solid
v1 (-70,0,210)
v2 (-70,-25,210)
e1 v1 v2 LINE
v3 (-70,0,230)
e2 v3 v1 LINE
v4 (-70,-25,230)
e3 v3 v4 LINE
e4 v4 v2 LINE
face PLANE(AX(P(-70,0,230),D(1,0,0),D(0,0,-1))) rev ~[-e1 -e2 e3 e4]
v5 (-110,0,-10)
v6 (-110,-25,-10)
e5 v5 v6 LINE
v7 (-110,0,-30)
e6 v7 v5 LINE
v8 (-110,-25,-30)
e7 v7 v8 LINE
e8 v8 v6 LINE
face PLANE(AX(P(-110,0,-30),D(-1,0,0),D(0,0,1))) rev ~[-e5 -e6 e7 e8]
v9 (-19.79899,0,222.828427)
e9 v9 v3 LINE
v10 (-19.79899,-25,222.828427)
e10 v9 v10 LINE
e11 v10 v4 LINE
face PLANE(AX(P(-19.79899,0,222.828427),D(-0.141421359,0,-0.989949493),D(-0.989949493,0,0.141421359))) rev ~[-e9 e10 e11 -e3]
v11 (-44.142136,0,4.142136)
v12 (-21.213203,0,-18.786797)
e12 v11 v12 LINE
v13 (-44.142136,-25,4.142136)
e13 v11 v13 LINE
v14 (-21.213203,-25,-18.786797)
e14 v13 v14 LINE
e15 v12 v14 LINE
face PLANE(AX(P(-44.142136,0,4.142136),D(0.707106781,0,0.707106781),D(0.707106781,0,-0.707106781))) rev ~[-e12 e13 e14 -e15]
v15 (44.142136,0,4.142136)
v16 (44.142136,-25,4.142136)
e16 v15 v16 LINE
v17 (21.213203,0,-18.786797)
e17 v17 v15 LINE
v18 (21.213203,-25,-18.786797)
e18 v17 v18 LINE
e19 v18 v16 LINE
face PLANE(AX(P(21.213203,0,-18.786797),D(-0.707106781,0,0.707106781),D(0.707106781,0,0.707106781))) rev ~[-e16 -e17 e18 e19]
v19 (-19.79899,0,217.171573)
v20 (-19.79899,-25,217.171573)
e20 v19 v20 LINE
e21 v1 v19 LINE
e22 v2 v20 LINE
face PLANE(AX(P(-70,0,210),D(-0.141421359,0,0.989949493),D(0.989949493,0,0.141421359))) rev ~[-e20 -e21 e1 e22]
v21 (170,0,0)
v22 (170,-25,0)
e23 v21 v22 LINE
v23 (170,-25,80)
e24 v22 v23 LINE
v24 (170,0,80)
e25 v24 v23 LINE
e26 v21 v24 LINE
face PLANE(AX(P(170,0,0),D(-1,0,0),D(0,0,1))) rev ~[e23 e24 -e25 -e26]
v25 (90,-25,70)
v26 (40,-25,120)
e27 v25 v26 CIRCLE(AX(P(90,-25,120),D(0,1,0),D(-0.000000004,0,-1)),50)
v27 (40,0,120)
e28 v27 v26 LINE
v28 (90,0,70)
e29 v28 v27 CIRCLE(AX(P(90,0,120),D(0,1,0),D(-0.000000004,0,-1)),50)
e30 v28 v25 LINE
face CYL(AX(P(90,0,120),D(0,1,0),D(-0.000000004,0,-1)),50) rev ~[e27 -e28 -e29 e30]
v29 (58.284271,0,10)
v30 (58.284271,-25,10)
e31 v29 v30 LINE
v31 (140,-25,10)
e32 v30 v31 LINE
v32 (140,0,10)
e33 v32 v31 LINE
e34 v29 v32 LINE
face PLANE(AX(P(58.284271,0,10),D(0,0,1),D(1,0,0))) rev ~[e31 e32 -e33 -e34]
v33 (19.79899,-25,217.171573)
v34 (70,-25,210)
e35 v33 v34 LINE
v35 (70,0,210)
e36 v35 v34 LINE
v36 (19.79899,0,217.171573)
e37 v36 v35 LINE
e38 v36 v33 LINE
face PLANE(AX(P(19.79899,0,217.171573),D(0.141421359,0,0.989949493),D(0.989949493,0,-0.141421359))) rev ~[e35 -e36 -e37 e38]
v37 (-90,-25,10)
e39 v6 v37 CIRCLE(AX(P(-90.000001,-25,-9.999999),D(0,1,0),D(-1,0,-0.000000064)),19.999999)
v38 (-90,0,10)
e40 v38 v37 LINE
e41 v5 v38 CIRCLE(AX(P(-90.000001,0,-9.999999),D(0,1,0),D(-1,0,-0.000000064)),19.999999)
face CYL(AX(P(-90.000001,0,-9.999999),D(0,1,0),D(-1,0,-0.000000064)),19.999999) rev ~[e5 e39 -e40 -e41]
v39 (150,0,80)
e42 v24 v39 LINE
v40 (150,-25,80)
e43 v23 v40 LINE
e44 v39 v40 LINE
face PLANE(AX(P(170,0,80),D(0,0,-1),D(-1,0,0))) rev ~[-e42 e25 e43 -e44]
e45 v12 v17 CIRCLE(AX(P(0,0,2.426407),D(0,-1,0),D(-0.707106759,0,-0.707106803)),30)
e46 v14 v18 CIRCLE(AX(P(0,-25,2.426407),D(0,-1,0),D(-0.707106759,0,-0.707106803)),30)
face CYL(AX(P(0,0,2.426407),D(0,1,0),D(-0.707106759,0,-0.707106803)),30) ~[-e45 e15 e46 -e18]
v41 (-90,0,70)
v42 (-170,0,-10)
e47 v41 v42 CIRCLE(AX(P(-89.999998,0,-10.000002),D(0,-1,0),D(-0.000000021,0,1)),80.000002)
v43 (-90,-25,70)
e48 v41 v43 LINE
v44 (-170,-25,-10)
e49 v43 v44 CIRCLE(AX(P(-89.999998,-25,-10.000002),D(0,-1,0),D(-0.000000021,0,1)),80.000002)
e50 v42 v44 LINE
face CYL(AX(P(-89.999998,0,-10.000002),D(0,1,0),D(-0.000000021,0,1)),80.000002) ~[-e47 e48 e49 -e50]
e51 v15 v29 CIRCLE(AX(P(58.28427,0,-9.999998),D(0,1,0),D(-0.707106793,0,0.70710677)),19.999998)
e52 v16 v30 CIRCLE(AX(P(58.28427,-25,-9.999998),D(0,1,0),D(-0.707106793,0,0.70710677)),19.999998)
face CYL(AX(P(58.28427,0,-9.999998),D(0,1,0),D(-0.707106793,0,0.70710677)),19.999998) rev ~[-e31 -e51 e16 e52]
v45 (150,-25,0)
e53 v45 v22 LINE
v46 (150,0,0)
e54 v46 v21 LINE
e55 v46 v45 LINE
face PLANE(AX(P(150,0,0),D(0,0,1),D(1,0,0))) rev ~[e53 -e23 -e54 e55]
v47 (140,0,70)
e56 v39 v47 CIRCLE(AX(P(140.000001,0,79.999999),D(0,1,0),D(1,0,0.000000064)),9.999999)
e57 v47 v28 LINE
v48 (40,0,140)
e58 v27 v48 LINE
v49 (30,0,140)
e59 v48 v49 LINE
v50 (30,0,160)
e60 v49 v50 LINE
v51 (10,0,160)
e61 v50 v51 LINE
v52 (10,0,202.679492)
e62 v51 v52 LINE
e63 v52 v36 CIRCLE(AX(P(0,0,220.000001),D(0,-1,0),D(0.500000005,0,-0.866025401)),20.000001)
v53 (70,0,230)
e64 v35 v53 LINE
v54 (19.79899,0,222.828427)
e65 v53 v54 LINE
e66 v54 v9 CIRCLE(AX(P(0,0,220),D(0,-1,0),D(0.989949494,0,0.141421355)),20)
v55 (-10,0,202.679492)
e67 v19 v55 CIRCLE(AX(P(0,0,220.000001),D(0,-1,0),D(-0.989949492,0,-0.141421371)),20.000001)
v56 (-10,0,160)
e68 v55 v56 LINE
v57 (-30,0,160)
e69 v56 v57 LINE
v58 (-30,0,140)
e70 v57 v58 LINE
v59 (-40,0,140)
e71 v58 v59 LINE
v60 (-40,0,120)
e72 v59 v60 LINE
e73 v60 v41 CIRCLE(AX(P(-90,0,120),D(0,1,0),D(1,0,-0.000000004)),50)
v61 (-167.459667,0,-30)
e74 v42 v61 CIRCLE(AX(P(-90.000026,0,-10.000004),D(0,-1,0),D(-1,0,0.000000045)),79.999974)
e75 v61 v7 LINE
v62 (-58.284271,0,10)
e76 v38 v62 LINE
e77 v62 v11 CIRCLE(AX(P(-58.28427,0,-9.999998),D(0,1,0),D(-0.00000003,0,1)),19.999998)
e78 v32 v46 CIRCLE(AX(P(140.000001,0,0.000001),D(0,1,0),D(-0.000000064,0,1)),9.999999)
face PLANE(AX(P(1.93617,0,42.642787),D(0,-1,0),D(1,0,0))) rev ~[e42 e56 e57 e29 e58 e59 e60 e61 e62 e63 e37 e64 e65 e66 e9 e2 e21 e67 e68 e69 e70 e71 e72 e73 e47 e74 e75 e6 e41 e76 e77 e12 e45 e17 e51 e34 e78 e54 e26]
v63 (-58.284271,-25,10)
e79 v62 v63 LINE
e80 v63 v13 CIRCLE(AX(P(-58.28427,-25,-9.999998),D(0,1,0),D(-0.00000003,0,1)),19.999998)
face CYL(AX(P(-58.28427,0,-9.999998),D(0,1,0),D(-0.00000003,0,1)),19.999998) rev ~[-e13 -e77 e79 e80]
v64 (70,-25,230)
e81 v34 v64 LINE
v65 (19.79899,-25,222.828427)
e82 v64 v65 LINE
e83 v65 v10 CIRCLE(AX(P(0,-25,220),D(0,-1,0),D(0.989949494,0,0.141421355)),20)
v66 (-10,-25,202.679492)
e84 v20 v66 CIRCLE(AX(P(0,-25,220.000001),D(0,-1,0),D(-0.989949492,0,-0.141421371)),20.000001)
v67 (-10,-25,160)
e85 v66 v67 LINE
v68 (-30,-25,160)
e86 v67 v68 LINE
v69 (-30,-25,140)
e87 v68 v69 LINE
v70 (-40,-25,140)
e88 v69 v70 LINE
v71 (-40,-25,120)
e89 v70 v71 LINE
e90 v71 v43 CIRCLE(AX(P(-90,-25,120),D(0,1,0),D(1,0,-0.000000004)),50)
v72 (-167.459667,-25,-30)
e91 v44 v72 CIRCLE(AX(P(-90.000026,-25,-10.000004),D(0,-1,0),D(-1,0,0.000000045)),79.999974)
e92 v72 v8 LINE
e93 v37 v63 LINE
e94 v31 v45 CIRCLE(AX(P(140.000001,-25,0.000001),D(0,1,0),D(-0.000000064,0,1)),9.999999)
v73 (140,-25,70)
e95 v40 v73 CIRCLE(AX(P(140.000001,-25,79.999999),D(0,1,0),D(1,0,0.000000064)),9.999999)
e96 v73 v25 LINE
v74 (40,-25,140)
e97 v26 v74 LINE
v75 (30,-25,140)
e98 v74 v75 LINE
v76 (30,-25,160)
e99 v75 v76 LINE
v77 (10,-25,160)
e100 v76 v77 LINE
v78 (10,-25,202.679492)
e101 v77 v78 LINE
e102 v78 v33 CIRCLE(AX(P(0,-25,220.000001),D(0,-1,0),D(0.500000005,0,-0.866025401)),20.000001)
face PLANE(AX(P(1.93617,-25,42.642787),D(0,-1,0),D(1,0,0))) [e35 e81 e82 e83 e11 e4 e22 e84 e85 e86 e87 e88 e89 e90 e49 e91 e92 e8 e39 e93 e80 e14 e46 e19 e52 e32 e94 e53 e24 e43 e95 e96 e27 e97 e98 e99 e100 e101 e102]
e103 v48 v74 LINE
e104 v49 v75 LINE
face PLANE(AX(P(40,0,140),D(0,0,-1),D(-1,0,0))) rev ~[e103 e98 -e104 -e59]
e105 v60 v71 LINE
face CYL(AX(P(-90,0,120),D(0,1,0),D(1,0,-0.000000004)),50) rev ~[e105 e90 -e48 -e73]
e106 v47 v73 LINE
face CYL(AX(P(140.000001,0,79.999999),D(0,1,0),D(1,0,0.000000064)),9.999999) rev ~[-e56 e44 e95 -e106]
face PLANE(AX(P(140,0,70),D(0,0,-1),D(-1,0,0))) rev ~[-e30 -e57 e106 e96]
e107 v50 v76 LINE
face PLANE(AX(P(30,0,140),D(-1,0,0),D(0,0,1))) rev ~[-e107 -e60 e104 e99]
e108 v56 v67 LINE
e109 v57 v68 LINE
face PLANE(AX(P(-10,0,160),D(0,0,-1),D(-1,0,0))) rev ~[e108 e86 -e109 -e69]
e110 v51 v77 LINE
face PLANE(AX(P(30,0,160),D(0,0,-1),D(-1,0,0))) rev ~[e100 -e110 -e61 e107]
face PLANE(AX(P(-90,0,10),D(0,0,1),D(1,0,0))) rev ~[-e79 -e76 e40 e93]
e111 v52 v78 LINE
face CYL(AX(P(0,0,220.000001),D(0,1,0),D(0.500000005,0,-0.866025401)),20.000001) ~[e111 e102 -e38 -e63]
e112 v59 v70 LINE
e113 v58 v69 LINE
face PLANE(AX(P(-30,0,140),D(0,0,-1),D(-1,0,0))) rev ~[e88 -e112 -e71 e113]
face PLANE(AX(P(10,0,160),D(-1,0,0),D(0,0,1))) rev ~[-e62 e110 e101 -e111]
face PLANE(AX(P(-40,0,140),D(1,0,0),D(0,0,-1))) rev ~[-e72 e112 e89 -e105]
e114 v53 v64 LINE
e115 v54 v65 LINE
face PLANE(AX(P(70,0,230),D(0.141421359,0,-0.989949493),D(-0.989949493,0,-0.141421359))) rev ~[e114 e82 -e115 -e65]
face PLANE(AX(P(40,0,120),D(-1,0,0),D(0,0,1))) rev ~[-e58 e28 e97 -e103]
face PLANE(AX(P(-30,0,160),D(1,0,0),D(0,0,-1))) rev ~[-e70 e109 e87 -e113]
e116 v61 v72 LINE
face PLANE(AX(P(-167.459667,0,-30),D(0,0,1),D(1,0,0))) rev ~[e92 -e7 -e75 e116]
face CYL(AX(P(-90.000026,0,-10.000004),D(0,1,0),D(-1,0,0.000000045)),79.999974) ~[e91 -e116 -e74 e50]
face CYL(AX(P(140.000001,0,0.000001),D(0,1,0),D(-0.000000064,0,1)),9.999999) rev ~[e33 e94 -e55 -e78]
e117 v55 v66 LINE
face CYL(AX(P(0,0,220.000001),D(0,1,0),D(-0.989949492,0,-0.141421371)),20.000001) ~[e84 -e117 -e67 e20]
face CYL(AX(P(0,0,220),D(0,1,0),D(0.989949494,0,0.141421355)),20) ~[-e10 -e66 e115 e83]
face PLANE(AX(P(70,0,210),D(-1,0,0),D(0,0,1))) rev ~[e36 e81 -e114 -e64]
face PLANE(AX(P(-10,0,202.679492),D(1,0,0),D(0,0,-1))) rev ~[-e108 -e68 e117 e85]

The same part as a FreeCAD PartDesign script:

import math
import FreeCAD as App
import Part
import Sketcher

V = App.Vector

doc = App.newDocument("Part")
body = doc.addObject("PartDesign::Body", "Body")

sketch1 = body.newObject("Sketcher::SketchObject", "Sketch")
sketch1.AttachmentSupport = (doc.getObject("XZ_Plane"), [""])
sketch1.MapMode = "FlatFace"
sketch1.addGeometry([
    Part.LineSegment(V(-40, 140, 0), V(-40, 120, 0)),
    Part.ArcOfCircle(Part.Circle(V(-90, 120, 0), V(0, 0, 1), 50), math.radians(-90), math.radians(0)),
    Part.ArcOfCircle(Part.Circle(V(-90, -10, 0), V(0, 0, 1), 80), math.radians(90), math.radians(180)),
    Part.ArcOfCircle(Part.Circle(V(-90, -10, 0), V(0, 0, 1), 80), math.radians(180), math.radians(194.48)),
    Part.LineSegment(V(-167, -30, 0), V(-110, -30, 0)),
    Part.LineSegment(V(-110, -30, 0), V(-110, -10, 0)),
    Part.ArcOfCircle(Part.Circle(V(-90, -10, 0), V(0, 0, 1), 20), math.radians(90), math.radians(180)),
    Part.LineSegment(V(-90, 10, 0), V(-58, 10, 0)),
    Part.ArcOfCircle(Part.Circle(V(-58, -10, 0), V(0, 0, 1), 20), math.radians(45), math.radians(90)),
    Part.LineSegment(V(-44, 4, 0), V(-21, -19, 0)),
    Part.ArcOfCircle(Part.Circle(V(0, 2, 0), V(0, 0, 1), 30), math.radians(-135), math.radians(-45)),
    Part.LineSegment(V(21, -19, 0), V(44, 4, 0)),
    Part.ArcOfCircle(Part.Circle(V(58, -10, 0), V(0, 0, 1), 20), math.radians(90), math.radians(135)),
    Part.LineSegment(V(58, 10, 0), V(140, 10, 0)),
    Part.ArcOfCircle(Part.Circle(V(140, 0, 0), V(0, 0, 1), 10), math.radians(0), math.radians(90)),
    Part.LineSegment(V(150, 0, 0), V(170, 0, 0)),
    Part.LineSegment(V(170, 0, 0), V(170, 80, 0)),
    Part.LineSegment(V(170, 80, 0), V(150, 80, 0)),
    Part.ArcOfCircle(Part.Circle(V(140, 80, 0), V(0, 0, 1), 10), math.radians(-90), math.radians(0)),
    Part.LineSegment(V(140, 70, 0), V(90, 70, 0)),
    Part.ArcOfCircle(Part.Circle(V(90, 120, 0), V(0, 0, 1), 50), math.radians(-180), math.radians(-90)),
    Part.LineSegment(V(40, 120, 0), V(40, 140, 0)),
    Part.LineSegment(V(40, 140, 0), V(30, 140, 0)),
    Part.LineSegment(V(30, 140, 0), V(30, 160, 0)),
    Part.LineSegment(V(30, 160, 0), V(10, 160, 0)),
    Part.LineSegment(V(10, 160, 0), V(10, 203, 0)),
    Part.ArcOfCircle(Part.Circle(V(0, 220, 0), V(0, 0, 1), 20), math.radians(-60), math.radians(-8)),
    Part.LineSegment(V(20, 217, 0), V(70, 210, 0)),
    Part.LineSegment(V(70, 210, 0), V(70, 230, 0)),
    Part.LineSegment(V(70, 230, 0), V(20, 223, 0)),
    Part.ArcOfCircle(Part.Circle(V(0, 220, 0), V(0, 0, 1), 20), math.radians(8), math.radians(172)),
    Part.LineSegment(V(-20, 223, 0), V(-70, 230, 0)),
    Part.LineSegment(V(-70, 230, 0), V(-70, 210, 0)),
    Part.LineSegment(V(-70, 210, 0), V(-20, 217, 0)),
    Part.ArcOfCircle(Part.Circle(V(0, 220, 0), V(0, 0, 1), 20), math.radians(-172), math.radians(-120)),
    Part.LineSegment(V(-10, 203, 0), V(-10, 160, 0)),
    Part.LineSegment(V(-10, 160, 0), V(-30, 160, 0)),
    Part.LineSegment(V(-30, 160, 0), V(-30, 140, 0)),
    Part.LineSegment(V(-30, 140, 0), V(-40, 140, 0)),
], False)
sketch1.addConstraint([
    Sketcher.Constraint("Tangent", 0, 2, 1, 2),
    Sketcher.Constraint("Tangent", 1, 1, 2, 1),
    Sketcher.Constraint("Tangent", 2, 2, 3, 1),
    Sketcher.Constraint("Coincident", 3, 2, 4, 1),
    Sketcher.Constraint("Coincident", 4, 2, 5, 1),
    Sketcher.Constraint("Tangent", 5, 2, 6, 2),
    Sketcher.Constraint("Tangent", 6, 1, 7, 1),
    Sketcher.Constraint("Tangent", 7, 2, 8, 2),
    Sketcher.Constraint("Tangent", 8, 1, 9, 1),
    Sketcher.Constraint("Tangent", 9, 2, 10, 1),
    Sketcher.Constraint("Tangent", 10, 2, 11, 1),
    Sketcher.Constraint("Tangent", 11, 2, 12, 2),
    Sketcher.Constraint("Tangent", 12, 1, 13, 1),
    Sketcher.Constraint("Tangent", 13, 2, 14, 2),
    Sketcher.Constraint("Coincident", 14, 1, 15, 1),
    Sketcher.Constraint("Coincident", 15, 2, 16, 1),
    Sketcher.Constraint("Coincident", 16, 2, 17, 1),
    Sketcher.Constraint("Coincident", 17, 2, 18, 2),
    Sketcher.Constraint("Tangent", 18, 1, 19, 1),
    Sketcher.Constraint("Tangent", 19, 2, 20, 2),
    Sketcher.Constraint("Tangent", 20, 1, 21, 1),
    Sketcher.Constraint("Coincident", 21, 2, 22, 1),
    Sketcher.Constraint("Coincident", 22, 2, 23, 1),
    Sketcher.Constraint("Coincident", 23, 2, 24, 1),
    Sketcher.Constraint("Coincident", 24, 2, 25, 1),
    Sketcher.Constraint("Coincident", 25, 2, 26, 1),
    Sketcher.Constraint("Coincident", 26, 2, 27, 1),
    Sketcher.Constraint("Coincident", 27, 2, 28, 1),
    Sketcher.Constraint("Coincident", 28, 2, 29, 1),
    Sketcher.Constraint("Coincident", 29, 2, 30, 1),
    Sketcher.Constraint("Coincident", 30, 2, 31, 1),
    Sketcher.Constraint("Coincident", 31, 2, 32, 1),
    Sketcher.Constraint("Coincident", 32, 2, 33, 1),
    Sketcher.Constraint("Coincident", 33, 2, 34, 1),
    Sketcher.Constraint("Coincident", 34, 2, 35, 1),
    Sketcher.Constraint("Coincident", 35, 2, 36, 1),
    Sketcher.Constraint("Coincident", 36, 2, 37, 1),
    Sketcher.Constraint("Coincident", 37, 2, 38, 1),
    Sketcher.Constraint("Coincident", 38, 2, 0, 1),
    Sketcher.Constraint("Vertical", 0),
    Sketcher.Constraint("Horizontal", 4),
    Sketcher.Constraint("Vertical", 5),
    Sketcher.Constraint("Horizontal", 7),
    Sketcher.Constraint("Horizontal", 13),
    Sketcher.Constraint("Horizontal", 15),
    Sketcher.Constraint("Vertical", 16),
    Sketcher.Constraint("Horizontal", 17),
    Sketcher.Constraint("Horizontal", 19),
    Sketcher.Constraint("Vertical", 21),
    Sketcher.Constraint("Horizontal", 22),
    Sketcher.Constraint("Vertical", 23),
    Sketcher.Constraint("Horizontal", 24),
    Sketcher.Constraint("Vertical", 25),
    Sketcher.Constraint("Vertical", 28),
    Sketcher.Constraint("Vertical", 32),
    Sketcher.Constraint("Vertical", 35),
    Sketcher.Constraint("Horizontal", 36),
    Sketcher.Constraint("Vertical", 37),
    Sketcher.Constraint("Horizontal", 38),
    Sketcher.Constraint("Coincident", 6, 3, 2, 3),
    Sketcher.Constraint("Coincident", 30, 3, 26, 3),
    Sketcher.Constraint("Coincident", 34, 3, 26, 3),
    Sketcher.Constraint("Equal", 6, 8),
    Sketcher.Constraint("Equal", 8, 12),
    Sketcher.Constraint("Equal", 14, 18),
    Sketcher.Constraint("Equal", 1, 20),
    Sketcher.Constraint("Equal", 6, 26),
    Sketcher.Constraint("Equal", 26, 30),
    Sketcher.Constraint("Equal", 30, 34),
    Sketcher.Constraint("Symmetric", 8, 3, 12, 3, -2),
    Sketcher.Constraint("Symmetric", 1, 3, 20, 3, -2),
    Sketcher.Constraint("Symmetric", 29, 2, 30, 2, -2),
    Sketcher.Constraint("Symmetric", 28, 2, 31, 2, -2),
    Sketcher.Constraint("Symmetric", 24, 2, 35, 2, -2),
    Sketcher.Constraint("Symmetric", 22, 2, 37, 2, -2),
    Sketcher.Constraint("PointOnObject", 10, 3, -2),
    Sketcher.Constraint("PointOnObject", 14, 3, -1),
    Sketcher.Constraint("PointOnObject", 14, 1, -1),
    Sketcher.Constraint("Perpendicular", 9, 11),
    Sketcher.Constraint("Parallel", 27, 31),
    Sketcher.Constraint("Parallel", 29, 33),
    Sketcher.Constraint("Horizontal", 6, 3, 2, 2),
    Sketcher.Constraint("Horizontal", 18, 3, 16, 2),
    Sketcher.Constraint("Horizontal", 27, 2, 32, 2),
    Sketcher.Constraint("Vertical", 1, 3, 2, 3),
    Sketcher.Constraint("Vertical", 14, 3, 18, 3),
    Sketcher.Constraint("Vertical", 26, 2, 29, 2),
    Sketcher.Constraint("Equal", 17, 24),
    Sketcher.Constraint("Equal", 36, 0),
    Sketcher.Constraint("Equal", 0, 5),
    Sketcher.Constraint("Equal", 21, 23),
    Sketcher.Constraint("Equal", 23, 28),
    Sketcher.Constraint("Radius", 1, 50.0),
    Sketcher.Constraint("Radius", 2, 80.000002),
    Sketcher.Constraint("Radius", 6, 19.999999),
    Sketcher.Constraint("Radius", 10, 30.0),
    Sketcher.Constraint("Radius", 14, 9.999999),
    Sketcher.Constraint("DistanceX", 15, 1, 15, 2, 20.0),
    Sketcher.Constraint("DistanceX", 19, 2, 19, 1, 50.0),
    Sketcher.Constraint("DistanceX", 22, 2, 22, 1, 10.0),
    Sketcher.Constraint("DistanceX", 1, 3, -1, 1, 90.0),
    Sketcher.Constraint("DistanceY", -1, 1, 26, 3, 220.000001),
    Sketcher.Constraint("DistanceX", -1, 1, 27, 2, 70.0),
    Sketcher.Constraint("Radius", 3, 79.999974),
    Sketcher.Constraint("DistanceX", 7, 1, 7, 2, 31.715729),
    Sketcher.Constraint("DistanceX", -1, 1, 26, 2, 19.79899),
])
pad1 = body.newObject("PartDesign::Pad", "Pad")
pad1.Profile = sketch1
pad1.Length = 25

doc.recompute()
